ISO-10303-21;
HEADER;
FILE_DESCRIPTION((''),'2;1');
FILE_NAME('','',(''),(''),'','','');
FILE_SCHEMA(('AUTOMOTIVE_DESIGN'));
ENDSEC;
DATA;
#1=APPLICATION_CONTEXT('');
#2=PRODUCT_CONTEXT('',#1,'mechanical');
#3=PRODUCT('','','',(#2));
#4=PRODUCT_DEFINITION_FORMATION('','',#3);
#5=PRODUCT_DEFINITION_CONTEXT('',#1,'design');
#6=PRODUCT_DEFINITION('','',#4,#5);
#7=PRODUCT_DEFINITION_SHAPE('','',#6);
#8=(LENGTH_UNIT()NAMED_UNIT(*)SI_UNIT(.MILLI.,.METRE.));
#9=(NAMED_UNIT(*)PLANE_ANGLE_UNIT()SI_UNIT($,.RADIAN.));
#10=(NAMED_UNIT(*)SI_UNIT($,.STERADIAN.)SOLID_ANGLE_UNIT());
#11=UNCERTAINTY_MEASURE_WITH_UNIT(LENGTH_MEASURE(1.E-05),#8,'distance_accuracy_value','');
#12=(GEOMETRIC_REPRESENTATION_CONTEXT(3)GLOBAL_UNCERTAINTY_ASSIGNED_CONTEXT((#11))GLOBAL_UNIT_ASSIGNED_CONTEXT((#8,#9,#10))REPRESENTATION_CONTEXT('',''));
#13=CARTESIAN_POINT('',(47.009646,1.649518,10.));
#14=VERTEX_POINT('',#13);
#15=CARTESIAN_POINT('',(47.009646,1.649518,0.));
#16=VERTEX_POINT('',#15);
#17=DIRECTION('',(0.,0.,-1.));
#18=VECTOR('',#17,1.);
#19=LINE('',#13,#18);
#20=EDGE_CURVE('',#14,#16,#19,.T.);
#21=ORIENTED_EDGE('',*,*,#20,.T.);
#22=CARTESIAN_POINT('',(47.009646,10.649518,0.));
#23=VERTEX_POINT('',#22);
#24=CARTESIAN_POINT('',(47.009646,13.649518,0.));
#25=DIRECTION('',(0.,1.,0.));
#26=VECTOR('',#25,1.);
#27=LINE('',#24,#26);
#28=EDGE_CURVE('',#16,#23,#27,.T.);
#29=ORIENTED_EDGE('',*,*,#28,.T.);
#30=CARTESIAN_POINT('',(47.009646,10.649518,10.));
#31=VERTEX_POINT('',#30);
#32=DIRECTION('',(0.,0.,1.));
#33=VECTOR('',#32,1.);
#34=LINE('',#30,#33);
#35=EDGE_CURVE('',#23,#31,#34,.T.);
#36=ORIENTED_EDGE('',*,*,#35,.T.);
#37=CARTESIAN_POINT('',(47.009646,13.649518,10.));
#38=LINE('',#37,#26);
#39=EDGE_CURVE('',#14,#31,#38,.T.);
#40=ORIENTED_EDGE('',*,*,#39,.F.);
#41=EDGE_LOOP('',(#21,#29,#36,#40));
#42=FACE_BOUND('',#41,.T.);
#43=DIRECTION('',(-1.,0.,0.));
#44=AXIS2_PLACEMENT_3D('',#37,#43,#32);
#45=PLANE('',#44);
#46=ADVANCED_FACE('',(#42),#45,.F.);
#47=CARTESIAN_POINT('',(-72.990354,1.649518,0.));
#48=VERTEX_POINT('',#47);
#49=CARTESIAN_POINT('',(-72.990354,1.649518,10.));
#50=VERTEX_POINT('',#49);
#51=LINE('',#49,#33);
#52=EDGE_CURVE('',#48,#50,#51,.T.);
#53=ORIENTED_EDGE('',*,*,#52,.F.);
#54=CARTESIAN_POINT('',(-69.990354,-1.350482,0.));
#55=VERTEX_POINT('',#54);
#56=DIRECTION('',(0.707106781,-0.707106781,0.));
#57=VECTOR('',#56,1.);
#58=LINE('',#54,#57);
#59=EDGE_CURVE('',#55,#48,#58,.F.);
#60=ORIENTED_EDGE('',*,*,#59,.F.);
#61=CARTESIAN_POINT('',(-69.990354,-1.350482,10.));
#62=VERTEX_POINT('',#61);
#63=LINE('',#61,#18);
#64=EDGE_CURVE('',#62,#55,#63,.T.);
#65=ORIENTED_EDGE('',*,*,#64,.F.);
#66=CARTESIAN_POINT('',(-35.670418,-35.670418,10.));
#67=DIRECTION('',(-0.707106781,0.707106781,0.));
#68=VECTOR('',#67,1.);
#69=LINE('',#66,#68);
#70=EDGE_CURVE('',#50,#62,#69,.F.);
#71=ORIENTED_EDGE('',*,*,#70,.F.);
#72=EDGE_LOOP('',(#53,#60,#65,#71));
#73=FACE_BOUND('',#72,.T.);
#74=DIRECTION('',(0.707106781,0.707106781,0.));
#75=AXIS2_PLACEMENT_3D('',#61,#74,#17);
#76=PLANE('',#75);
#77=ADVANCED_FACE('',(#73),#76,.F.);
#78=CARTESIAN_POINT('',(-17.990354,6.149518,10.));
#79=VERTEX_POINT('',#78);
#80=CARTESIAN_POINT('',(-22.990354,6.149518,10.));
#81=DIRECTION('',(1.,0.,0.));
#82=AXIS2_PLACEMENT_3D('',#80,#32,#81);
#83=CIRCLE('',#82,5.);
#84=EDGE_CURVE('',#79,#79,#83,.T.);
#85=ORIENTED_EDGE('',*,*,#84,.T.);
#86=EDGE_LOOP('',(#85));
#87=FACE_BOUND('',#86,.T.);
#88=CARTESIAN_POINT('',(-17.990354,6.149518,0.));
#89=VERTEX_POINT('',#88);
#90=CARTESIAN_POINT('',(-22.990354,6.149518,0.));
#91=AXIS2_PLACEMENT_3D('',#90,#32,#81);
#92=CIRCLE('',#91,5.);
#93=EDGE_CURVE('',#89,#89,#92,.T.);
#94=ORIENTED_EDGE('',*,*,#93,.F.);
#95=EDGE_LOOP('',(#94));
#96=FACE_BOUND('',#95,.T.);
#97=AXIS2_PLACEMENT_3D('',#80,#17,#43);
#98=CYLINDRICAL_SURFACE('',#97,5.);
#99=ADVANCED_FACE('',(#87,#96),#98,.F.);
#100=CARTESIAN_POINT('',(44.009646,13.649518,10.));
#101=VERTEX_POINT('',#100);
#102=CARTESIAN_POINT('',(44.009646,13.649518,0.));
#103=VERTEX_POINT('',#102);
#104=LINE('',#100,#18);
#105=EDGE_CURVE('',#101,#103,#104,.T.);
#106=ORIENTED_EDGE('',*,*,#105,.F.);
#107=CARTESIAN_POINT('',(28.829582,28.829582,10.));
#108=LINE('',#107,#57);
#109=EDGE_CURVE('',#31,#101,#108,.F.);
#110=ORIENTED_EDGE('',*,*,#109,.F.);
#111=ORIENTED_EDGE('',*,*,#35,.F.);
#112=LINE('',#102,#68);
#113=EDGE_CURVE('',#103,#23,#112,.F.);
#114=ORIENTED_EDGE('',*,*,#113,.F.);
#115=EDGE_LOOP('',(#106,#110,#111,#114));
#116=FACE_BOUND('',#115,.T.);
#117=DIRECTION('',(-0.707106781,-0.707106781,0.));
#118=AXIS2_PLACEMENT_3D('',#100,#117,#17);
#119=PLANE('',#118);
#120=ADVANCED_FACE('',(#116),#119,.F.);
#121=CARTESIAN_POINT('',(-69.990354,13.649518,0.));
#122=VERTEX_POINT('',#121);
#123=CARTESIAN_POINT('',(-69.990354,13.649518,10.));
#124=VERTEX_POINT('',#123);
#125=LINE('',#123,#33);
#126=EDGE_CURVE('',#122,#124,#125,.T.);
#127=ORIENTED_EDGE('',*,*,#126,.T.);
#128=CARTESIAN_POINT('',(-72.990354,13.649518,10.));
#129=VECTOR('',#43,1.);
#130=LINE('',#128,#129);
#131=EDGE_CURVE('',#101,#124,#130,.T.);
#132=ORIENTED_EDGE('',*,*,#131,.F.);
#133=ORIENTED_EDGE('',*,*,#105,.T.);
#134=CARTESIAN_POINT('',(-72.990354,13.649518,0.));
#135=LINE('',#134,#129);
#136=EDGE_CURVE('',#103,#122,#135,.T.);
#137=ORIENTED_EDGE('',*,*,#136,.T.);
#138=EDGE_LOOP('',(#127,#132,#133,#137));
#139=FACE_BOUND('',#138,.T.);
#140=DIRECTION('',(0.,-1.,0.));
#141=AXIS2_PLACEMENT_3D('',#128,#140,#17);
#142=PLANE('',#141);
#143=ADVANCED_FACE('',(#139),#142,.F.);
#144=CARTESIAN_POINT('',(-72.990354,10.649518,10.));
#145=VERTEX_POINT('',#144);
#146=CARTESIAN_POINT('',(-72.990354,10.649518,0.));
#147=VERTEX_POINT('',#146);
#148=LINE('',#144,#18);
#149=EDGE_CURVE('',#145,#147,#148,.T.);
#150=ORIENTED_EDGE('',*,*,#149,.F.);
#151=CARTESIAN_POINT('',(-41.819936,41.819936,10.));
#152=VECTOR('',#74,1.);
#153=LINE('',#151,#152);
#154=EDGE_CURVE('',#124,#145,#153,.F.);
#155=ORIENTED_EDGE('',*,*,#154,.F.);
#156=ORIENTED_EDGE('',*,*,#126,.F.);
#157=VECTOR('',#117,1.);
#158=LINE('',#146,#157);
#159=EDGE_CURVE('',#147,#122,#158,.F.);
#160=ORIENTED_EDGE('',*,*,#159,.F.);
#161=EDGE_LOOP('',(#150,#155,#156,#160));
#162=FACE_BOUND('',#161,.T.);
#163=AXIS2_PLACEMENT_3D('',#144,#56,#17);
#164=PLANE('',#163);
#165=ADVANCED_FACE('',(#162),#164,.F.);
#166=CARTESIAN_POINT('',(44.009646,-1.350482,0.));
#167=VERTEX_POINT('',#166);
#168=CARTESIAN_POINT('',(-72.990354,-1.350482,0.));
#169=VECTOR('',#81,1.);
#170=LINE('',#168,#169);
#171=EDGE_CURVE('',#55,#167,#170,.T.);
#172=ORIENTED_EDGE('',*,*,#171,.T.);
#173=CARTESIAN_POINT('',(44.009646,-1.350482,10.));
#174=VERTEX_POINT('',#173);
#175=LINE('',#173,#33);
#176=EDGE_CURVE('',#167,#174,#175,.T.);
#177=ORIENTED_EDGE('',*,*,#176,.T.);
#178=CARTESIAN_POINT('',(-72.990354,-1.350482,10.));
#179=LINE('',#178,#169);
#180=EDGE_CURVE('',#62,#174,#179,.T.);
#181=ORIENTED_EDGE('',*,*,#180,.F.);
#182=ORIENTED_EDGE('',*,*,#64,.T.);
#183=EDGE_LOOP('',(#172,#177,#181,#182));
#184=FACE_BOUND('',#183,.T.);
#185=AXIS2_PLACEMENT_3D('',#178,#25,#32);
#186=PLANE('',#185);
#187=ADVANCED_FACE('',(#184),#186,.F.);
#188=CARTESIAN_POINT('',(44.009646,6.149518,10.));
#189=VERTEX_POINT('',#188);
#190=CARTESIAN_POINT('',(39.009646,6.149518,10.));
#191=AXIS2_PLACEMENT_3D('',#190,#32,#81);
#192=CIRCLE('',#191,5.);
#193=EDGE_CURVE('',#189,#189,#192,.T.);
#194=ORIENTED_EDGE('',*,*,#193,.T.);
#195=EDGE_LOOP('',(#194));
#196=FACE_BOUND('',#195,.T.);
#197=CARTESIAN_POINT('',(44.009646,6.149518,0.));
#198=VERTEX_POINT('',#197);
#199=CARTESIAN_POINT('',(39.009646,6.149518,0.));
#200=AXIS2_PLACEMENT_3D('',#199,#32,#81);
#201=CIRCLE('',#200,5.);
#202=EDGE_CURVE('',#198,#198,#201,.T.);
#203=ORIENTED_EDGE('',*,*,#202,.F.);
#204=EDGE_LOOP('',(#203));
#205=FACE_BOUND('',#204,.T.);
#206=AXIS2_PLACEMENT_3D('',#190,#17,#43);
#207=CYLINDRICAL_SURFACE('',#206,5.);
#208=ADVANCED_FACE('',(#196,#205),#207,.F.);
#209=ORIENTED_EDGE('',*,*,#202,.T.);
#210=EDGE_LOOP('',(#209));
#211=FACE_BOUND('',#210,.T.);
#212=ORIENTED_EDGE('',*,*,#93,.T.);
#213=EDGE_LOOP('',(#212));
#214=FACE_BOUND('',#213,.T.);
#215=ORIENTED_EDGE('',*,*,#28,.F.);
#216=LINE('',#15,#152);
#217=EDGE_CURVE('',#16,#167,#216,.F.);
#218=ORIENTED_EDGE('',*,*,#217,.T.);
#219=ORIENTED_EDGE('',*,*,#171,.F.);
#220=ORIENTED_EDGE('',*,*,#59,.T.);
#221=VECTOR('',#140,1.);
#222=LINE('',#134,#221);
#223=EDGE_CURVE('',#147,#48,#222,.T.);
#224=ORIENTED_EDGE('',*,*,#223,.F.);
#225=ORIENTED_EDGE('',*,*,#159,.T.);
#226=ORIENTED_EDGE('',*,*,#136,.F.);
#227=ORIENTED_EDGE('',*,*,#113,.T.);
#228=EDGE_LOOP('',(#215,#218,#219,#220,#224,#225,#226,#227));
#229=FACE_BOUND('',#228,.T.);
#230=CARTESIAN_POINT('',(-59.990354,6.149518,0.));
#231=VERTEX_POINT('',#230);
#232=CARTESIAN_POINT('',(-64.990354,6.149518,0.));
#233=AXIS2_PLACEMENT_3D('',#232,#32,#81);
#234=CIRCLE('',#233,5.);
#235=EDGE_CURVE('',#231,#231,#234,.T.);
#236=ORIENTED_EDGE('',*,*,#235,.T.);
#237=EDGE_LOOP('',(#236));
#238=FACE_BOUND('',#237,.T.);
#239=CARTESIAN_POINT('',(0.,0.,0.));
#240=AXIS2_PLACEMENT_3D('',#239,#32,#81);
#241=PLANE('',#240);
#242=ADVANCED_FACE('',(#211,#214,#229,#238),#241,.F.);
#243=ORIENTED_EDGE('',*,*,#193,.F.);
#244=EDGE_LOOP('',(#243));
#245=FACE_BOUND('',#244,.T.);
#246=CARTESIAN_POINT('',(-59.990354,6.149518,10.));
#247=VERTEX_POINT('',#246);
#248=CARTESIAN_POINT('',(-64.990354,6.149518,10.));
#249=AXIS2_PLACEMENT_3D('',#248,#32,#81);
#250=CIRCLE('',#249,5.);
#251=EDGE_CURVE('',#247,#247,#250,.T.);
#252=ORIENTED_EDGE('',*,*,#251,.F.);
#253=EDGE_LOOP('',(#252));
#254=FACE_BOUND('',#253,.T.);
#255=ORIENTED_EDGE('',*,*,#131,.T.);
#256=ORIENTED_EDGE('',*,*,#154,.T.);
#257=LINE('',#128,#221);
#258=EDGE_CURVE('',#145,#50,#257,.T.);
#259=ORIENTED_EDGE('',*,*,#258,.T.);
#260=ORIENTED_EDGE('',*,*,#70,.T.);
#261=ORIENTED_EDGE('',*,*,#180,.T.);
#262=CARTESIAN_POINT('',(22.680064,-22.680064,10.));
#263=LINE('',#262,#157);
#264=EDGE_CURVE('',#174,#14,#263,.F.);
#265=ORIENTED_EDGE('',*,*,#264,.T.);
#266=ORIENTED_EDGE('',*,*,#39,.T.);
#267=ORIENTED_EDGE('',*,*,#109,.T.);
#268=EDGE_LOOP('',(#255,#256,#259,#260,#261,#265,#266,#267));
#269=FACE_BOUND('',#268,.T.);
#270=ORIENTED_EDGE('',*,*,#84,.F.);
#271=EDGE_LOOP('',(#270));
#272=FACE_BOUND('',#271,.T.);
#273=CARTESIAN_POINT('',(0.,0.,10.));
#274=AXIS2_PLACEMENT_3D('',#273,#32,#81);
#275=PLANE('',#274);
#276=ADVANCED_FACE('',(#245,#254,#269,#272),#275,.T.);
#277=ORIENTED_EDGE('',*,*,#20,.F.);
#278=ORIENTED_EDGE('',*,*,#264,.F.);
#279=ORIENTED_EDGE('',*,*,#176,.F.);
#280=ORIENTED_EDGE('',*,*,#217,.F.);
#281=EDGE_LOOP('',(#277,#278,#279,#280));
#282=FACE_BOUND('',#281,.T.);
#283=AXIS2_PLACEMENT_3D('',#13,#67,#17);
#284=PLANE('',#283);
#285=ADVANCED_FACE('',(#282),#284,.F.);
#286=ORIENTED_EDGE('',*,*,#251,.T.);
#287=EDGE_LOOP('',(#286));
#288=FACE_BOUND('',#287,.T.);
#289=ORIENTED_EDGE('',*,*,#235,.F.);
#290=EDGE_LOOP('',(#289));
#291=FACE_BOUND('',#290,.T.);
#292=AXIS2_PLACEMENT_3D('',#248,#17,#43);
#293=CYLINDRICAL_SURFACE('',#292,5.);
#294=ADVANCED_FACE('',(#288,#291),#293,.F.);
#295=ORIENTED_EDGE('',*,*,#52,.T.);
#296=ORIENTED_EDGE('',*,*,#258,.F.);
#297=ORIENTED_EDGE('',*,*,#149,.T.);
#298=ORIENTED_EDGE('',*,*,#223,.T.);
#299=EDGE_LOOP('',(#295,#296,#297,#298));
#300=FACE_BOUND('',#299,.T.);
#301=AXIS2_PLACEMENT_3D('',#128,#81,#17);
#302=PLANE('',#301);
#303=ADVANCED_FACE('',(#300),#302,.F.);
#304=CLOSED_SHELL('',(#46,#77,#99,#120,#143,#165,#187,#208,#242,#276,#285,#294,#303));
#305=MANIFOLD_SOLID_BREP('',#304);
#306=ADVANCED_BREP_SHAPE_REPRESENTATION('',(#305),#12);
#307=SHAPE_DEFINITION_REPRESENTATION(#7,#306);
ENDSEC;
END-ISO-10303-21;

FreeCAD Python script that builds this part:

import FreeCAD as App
import Part
import Sketcher

V = App.Vector
Q = App.Units.Quantity


def edges_at(feature, points):
    """Names of the edges that pass closest to the given points."""
    edges = feature.Shape.Edges
    near = lambda p: min(range(len(edges)), key=lambda i: edges[i].distToShape(Part.Vertex(*p))[0])
    return sorted({f"Edge{near(p) + 1}" for p in points})

doc = App.newDocument("Part")
body = doc.addObject("PartDesign::Body", "Body")

sketch1 = doc.addObject("Sketcher::SketchObject", "Sketch")
body.addObject(sketch1)
sketch1.AttachmentSupport = (doc.XY_Plane, [""])
sketch1.MapMode = "FlatFace"
sketch1.addGeometry([
    Part.LineSegment(V(-72.990354, 13.649518, 0), V(-72.990354, -1.350482, 0)),
    Part.LineSegment(V(-72.990354, -1.350482, 0), V(47.009646, -1.350482, 0)),
    Part.LineSegment(V(47.009646, -1.350482, 0), V(47.009646, 13.649518, 0)),
    Part.LineSegment(V(47.009646, 13.649518, 0), V(-72.990354, 13.649518, 0)),
    Part.Circle(V(-64.990354, 6.149518, 0), V(0, 0, 1), 5),
    Part.Circle(V(-22.990354, 6.149518, 0), V(0, 0, 1), 5),
    Part.Circle(V(39.009646, 6.149518, 0), V(0, 0, 1), 5),
], False)
sketch1.addConstraint([
    Sketcher.Constraint("Coincident", 0, 2, 1, 1),
    Sketcher.Constraint("Coincident", 1, 2, 2, 1),
    Sketcher.Constraint("Coincident", 2, 2, 3, 1),
    Sketcher.Constraint("Coincident", 3, 2, 0, 1),
    Sketcher.Constraint("Vertical", 0),
    Sketcher.Constraint("Horizontal", 1),
    Sketcher.Constraint("Vertical", 2),
    Sketcher.Constraint("Horizontal", 3),
    Sketcher.Constraint("Equal", 4, 5),
    Sketcher.Constraint("Equal", 5, 6),
    Sketcher.Constraint("Horizontal", 4, 3, 5, 3),
    Sketcher.Constraint("Horizontal", 5, 3, 6, 3),
    Sketcher.Constraint("Diameter", 4, Q("10 mm")),
    Sketcher.Constraint("DistanceX", 1, 1, 1, 2, Q("120 mm")),
    Sketcher.Constraint("DistanceY", 0, 2, 0, 1, Q("15 mm")),
    Sketcher.Constraint("DistanceX", 4, 3, 5, 3, Q("42 mm")),
    Sketcher.Constraint("DistanceX", 5, 3, 6, 3, Q("62 mm")),
    Sketcher.Constraint("DistanceX", 0, 2, 4, 3, Q("8 mm")),
    Sketcher.Constraint("DistanceY", 0, 2, 4, 3, Q("7.5 mm")),
    Sketcher.Constraint("DistanceX", 4, 3, -1, 1, Q("64.990354 mm")),
    Sketcher.Constraint("DistanceY", -1, 1, 4, 3, Q("6.149518 mm")),
])
pad1 = doc.addObject("PartDesign::Pad", "Pad")
body.addObject(pad1)
pad1.Profile = sketch1
pad1.Length = 10
doc.recompute()

chamfer = doc.addObject("PartDesign::Chamfer", "Chamfer")
body.addObject(chamfer)
chamfer.Base = (pad1, edges_at(pad1, [
    (47.01, -1.35, 5),
    (-72.99, -1.35, 5),
    (-72.99, 13.65, 5),
    (47.01, 13.65, 5),
]))
chamfer.Size = 3

doc.recompute()
